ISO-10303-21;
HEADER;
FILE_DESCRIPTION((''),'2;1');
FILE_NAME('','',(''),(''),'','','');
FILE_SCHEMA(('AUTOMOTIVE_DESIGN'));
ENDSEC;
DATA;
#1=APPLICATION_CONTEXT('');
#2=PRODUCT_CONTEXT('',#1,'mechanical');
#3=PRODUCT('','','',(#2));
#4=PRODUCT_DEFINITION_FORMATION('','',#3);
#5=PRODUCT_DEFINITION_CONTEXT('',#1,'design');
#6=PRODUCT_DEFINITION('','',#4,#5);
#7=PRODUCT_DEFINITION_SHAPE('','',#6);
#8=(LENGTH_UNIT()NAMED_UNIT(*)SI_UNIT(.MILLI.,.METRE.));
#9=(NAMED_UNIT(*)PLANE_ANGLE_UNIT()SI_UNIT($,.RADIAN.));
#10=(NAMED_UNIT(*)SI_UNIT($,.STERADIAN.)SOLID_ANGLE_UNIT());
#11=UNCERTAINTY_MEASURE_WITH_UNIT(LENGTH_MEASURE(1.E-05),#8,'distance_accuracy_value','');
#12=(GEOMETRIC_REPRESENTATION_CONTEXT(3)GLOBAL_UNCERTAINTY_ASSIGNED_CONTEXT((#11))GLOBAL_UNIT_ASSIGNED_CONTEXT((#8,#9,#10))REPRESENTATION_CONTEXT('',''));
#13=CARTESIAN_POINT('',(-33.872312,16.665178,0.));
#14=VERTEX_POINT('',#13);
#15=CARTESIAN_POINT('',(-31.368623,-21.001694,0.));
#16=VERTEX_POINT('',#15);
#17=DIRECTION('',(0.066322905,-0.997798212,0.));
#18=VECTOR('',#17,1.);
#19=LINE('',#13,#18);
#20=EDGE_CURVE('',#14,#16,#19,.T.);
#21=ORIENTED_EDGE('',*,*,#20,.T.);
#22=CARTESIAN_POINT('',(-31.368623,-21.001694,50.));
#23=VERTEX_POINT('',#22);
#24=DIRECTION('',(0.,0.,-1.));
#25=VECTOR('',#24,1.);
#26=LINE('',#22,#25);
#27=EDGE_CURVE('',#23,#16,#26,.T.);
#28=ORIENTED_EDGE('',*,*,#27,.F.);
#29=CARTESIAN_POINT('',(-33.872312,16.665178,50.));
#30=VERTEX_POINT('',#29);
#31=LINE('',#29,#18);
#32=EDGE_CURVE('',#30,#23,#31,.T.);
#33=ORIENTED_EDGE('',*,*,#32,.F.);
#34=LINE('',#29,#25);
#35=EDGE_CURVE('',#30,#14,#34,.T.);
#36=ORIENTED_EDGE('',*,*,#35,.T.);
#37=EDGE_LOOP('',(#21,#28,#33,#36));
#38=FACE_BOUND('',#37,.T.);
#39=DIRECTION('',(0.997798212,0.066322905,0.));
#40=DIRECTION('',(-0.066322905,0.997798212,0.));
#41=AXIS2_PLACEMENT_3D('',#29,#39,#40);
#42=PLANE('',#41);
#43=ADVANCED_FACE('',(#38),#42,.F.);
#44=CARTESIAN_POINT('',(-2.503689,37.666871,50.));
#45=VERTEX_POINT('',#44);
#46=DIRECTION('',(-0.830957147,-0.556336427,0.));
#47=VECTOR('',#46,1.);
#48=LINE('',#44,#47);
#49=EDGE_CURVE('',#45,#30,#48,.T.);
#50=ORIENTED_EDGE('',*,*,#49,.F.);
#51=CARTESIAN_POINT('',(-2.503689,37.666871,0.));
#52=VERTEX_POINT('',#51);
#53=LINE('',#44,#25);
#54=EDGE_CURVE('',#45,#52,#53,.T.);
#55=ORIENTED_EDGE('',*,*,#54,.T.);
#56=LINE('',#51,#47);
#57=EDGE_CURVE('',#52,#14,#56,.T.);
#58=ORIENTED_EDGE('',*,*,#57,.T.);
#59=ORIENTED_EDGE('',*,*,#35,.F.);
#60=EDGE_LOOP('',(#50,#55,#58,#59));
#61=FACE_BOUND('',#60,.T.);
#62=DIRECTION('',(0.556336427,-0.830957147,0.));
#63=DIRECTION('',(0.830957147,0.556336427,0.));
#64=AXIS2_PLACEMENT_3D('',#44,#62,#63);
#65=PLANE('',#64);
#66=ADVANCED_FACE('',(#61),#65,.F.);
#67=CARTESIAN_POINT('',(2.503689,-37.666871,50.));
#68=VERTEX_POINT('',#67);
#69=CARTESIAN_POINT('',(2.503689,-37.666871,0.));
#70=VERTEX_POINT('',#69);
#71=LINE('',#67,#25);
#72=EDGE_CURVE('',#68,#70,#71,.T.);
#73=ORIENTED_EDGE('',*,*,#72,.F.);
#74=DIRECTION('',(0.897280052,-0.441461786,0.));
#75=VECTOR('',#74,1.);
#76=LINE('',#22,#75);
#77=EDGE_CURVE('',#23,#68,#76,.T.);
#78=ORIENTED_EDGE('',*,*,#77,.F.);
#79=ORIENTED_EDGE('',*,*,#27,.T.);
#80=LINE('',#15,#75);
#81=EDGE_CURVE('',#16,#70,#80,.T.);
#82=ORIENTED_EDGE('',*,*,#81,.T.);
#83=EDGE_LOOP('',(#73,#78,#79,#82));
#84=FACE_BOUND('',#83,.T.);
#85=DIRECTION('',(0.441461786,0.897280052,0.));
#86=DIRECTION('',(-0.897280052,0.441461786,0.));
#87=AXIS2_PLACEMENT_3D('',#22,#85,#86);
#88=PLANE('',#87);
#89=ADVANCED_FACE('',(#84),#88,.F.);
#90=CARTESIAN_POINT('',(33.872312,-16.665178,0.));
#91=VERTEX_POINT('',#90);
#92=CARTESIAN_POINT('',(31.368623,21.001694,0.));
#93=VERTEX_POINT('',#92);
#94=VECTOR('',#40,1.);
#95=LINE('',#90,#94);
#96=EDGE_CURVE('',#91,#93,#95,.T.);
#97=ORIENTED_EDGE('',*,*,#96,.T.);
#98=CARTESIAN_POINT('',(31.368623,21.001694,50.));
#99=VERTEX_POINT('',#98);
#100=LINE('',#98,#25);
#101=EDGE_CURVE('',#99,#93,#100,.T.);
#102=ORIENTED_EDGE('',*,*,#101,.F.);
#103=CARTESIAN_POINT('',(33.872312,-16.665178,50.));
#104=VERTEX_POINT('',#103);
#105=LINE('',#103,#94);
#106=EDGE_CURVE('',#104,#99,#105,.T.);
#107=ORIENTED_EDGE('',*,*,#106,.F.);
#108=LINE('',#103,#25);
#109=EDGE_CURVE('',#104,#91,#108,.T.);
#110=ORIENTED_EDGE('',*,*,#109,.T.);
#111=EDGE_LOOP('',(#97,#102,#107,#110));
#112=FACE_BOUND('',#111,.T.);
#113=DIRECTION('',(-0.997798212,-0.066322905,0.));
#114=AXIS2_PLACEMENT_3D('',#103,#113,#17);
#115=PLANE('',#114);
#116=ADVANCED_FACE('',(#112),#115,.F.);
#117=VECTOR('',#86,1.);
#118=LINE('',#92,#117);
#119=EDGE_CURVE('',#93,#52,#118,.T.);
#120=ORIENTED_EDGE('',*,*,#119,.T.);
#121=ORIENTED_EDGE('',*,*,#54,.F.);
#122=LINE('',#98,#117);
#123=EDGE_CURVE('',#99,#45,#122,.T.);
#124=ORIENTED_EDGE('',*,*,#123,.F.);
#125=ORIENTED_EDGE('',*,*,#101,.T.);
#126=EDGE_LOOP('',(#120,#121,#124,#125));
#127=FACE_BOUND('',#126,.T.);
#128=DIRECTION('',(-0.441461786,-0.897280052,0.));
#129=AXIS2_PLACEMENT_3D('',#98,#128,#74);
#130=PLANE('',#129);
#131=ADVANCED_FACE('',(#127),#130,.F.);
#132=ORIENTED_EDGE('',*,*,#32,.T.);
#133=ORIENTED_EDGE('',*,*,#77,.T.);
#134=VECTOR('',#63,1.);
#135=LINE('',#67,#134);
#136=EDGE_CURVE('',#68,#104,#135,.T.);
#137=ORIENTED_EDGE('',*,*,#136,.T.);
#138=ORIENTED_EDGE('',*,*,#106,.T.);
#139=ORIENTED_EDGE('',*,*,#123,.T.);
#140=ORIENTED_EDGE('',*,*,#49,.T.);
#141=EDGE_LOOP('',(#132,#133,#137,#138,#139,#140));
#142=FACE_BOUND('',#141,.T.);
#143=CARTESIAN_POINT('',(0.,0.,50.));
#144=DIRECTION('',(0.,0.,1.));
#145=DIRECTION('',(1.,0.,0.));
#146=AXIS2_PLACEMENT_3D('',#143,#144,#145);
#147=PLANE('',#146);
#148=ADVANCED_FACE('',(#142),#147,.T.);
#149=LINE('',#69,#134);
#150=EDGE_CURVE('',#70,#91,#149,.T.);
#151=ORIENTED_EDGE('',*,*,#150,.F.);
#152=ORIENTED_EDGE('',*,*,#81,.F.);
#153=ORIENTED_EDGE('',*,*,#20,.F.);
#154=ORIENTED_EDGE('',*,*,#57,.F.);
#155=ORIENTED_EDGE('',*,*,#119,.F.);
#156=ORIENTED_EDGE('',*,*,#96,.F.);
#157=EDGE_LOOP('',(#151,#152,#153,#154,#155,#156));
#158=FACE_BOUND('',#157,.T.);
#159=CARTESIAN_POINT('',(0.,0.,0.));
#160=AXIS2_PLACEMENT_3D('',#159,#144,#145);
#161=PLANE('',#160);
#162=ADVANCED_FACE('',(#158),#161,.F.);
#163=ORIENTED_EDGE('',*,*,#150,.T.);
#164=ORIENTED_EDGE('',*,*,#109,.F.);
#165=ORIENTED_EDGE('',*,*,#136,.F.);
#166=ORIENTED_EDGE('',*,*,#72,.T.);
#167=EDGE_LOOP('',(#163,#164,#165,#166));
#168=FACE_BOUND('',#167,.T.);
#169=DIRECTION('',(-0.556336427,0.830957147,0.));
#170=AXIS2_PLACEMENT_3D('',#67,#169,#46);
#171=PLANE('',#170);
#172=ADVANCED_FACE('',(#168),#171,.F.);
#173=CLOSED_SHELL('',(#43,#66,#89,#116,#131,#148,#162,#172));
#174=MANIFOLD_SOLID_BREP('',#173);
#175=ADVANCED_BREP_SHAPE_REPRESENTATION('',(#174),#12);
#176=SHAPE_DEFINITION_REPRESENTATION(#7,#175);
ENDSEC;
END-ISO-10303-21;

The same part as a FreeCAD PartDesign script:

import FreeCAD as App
import Part
import Sketcher
from FreeCAD import Vector

doc = App.newDocument("Part")
body = doc.addObject("PartDesign::Body", "Body")

# Sketch on XY plane
sketch1 = body.newObject("Sketcher::SketchObject", "Sketch")
sketch1.AttachmentSupport = (doc.getObject("XY_Plane"), [""])
sketch1.MapMode = "FlatFace"
sketch1.addGeometry([
    Part.LineSegment(Vector(34, -17, 0), Vector(31, 21, 0)),  # 0
    Part.LineSegment(Vector(31, 21, 0), Vector(-3, 38, 0)),  # 1
    Part.LineSegment(Vector(-3, 38, 0), Vector(-34, 17, 0)),  # 2
    Part.LineSegment(Vector(-34, 17, 0), Vector(-31, -21, 0)),  # 3
    Part.LineSegment(Vector(-31, -21, 0), Vector(3, -38, 0)),  # 4
    Part.LineSegment(Vector(3, -38, 0), Vector(34, -17, 0)),  # 5
], False)
sketch1.addConstraint([
    Sketcher.Constraint("Coincident", 0, 2, 1, 1),
    Sketcher.Constraint("Coincident", 1, 2, 2, 1),
    Sketcher.Constraint("Coincident", 2, 2, 3, 1),
    Sketcher.Constraint("Coincident", 3, 2, 4, 1),
    Sketcher.Constraint("Coincident", 4, 2, 5, 1),
    Sketcher.Constraint("Coincident", 5, 2, 0, 1),
    Sketcher.Constraint("Symmetric", 0, 2, 3, 2, -1, 1),
    Sketcher.Constraint("Symmetric", 1, 2, 4, 2, -1, 1),
    Sketcher.Constraint("Symmetric", 2, 2, 5, 2, -1, 1),
    Sketcher.Constraint("Equal", 0, 1),
    Sketcher.Constraint("Equal", 1, 2),
    Sketcher.Constraint("DistanceX", 2, 2, 4, 2, 36.376001),
    Sketcher.Constraint("Distance", 0, 37.749989),
    Sketcher.Constraint("DistanceX", 1, 2, -1, 1, 2.503689),
    Sketcher.Constraint("DistanceY", -1, 1, 1, 2, 37.666871),
])
pad1 = body.newObject("PartDesign::Pad", "Pad")
pad1.Profile = sketch1
pad1.Length = 50

doc.recompute()
